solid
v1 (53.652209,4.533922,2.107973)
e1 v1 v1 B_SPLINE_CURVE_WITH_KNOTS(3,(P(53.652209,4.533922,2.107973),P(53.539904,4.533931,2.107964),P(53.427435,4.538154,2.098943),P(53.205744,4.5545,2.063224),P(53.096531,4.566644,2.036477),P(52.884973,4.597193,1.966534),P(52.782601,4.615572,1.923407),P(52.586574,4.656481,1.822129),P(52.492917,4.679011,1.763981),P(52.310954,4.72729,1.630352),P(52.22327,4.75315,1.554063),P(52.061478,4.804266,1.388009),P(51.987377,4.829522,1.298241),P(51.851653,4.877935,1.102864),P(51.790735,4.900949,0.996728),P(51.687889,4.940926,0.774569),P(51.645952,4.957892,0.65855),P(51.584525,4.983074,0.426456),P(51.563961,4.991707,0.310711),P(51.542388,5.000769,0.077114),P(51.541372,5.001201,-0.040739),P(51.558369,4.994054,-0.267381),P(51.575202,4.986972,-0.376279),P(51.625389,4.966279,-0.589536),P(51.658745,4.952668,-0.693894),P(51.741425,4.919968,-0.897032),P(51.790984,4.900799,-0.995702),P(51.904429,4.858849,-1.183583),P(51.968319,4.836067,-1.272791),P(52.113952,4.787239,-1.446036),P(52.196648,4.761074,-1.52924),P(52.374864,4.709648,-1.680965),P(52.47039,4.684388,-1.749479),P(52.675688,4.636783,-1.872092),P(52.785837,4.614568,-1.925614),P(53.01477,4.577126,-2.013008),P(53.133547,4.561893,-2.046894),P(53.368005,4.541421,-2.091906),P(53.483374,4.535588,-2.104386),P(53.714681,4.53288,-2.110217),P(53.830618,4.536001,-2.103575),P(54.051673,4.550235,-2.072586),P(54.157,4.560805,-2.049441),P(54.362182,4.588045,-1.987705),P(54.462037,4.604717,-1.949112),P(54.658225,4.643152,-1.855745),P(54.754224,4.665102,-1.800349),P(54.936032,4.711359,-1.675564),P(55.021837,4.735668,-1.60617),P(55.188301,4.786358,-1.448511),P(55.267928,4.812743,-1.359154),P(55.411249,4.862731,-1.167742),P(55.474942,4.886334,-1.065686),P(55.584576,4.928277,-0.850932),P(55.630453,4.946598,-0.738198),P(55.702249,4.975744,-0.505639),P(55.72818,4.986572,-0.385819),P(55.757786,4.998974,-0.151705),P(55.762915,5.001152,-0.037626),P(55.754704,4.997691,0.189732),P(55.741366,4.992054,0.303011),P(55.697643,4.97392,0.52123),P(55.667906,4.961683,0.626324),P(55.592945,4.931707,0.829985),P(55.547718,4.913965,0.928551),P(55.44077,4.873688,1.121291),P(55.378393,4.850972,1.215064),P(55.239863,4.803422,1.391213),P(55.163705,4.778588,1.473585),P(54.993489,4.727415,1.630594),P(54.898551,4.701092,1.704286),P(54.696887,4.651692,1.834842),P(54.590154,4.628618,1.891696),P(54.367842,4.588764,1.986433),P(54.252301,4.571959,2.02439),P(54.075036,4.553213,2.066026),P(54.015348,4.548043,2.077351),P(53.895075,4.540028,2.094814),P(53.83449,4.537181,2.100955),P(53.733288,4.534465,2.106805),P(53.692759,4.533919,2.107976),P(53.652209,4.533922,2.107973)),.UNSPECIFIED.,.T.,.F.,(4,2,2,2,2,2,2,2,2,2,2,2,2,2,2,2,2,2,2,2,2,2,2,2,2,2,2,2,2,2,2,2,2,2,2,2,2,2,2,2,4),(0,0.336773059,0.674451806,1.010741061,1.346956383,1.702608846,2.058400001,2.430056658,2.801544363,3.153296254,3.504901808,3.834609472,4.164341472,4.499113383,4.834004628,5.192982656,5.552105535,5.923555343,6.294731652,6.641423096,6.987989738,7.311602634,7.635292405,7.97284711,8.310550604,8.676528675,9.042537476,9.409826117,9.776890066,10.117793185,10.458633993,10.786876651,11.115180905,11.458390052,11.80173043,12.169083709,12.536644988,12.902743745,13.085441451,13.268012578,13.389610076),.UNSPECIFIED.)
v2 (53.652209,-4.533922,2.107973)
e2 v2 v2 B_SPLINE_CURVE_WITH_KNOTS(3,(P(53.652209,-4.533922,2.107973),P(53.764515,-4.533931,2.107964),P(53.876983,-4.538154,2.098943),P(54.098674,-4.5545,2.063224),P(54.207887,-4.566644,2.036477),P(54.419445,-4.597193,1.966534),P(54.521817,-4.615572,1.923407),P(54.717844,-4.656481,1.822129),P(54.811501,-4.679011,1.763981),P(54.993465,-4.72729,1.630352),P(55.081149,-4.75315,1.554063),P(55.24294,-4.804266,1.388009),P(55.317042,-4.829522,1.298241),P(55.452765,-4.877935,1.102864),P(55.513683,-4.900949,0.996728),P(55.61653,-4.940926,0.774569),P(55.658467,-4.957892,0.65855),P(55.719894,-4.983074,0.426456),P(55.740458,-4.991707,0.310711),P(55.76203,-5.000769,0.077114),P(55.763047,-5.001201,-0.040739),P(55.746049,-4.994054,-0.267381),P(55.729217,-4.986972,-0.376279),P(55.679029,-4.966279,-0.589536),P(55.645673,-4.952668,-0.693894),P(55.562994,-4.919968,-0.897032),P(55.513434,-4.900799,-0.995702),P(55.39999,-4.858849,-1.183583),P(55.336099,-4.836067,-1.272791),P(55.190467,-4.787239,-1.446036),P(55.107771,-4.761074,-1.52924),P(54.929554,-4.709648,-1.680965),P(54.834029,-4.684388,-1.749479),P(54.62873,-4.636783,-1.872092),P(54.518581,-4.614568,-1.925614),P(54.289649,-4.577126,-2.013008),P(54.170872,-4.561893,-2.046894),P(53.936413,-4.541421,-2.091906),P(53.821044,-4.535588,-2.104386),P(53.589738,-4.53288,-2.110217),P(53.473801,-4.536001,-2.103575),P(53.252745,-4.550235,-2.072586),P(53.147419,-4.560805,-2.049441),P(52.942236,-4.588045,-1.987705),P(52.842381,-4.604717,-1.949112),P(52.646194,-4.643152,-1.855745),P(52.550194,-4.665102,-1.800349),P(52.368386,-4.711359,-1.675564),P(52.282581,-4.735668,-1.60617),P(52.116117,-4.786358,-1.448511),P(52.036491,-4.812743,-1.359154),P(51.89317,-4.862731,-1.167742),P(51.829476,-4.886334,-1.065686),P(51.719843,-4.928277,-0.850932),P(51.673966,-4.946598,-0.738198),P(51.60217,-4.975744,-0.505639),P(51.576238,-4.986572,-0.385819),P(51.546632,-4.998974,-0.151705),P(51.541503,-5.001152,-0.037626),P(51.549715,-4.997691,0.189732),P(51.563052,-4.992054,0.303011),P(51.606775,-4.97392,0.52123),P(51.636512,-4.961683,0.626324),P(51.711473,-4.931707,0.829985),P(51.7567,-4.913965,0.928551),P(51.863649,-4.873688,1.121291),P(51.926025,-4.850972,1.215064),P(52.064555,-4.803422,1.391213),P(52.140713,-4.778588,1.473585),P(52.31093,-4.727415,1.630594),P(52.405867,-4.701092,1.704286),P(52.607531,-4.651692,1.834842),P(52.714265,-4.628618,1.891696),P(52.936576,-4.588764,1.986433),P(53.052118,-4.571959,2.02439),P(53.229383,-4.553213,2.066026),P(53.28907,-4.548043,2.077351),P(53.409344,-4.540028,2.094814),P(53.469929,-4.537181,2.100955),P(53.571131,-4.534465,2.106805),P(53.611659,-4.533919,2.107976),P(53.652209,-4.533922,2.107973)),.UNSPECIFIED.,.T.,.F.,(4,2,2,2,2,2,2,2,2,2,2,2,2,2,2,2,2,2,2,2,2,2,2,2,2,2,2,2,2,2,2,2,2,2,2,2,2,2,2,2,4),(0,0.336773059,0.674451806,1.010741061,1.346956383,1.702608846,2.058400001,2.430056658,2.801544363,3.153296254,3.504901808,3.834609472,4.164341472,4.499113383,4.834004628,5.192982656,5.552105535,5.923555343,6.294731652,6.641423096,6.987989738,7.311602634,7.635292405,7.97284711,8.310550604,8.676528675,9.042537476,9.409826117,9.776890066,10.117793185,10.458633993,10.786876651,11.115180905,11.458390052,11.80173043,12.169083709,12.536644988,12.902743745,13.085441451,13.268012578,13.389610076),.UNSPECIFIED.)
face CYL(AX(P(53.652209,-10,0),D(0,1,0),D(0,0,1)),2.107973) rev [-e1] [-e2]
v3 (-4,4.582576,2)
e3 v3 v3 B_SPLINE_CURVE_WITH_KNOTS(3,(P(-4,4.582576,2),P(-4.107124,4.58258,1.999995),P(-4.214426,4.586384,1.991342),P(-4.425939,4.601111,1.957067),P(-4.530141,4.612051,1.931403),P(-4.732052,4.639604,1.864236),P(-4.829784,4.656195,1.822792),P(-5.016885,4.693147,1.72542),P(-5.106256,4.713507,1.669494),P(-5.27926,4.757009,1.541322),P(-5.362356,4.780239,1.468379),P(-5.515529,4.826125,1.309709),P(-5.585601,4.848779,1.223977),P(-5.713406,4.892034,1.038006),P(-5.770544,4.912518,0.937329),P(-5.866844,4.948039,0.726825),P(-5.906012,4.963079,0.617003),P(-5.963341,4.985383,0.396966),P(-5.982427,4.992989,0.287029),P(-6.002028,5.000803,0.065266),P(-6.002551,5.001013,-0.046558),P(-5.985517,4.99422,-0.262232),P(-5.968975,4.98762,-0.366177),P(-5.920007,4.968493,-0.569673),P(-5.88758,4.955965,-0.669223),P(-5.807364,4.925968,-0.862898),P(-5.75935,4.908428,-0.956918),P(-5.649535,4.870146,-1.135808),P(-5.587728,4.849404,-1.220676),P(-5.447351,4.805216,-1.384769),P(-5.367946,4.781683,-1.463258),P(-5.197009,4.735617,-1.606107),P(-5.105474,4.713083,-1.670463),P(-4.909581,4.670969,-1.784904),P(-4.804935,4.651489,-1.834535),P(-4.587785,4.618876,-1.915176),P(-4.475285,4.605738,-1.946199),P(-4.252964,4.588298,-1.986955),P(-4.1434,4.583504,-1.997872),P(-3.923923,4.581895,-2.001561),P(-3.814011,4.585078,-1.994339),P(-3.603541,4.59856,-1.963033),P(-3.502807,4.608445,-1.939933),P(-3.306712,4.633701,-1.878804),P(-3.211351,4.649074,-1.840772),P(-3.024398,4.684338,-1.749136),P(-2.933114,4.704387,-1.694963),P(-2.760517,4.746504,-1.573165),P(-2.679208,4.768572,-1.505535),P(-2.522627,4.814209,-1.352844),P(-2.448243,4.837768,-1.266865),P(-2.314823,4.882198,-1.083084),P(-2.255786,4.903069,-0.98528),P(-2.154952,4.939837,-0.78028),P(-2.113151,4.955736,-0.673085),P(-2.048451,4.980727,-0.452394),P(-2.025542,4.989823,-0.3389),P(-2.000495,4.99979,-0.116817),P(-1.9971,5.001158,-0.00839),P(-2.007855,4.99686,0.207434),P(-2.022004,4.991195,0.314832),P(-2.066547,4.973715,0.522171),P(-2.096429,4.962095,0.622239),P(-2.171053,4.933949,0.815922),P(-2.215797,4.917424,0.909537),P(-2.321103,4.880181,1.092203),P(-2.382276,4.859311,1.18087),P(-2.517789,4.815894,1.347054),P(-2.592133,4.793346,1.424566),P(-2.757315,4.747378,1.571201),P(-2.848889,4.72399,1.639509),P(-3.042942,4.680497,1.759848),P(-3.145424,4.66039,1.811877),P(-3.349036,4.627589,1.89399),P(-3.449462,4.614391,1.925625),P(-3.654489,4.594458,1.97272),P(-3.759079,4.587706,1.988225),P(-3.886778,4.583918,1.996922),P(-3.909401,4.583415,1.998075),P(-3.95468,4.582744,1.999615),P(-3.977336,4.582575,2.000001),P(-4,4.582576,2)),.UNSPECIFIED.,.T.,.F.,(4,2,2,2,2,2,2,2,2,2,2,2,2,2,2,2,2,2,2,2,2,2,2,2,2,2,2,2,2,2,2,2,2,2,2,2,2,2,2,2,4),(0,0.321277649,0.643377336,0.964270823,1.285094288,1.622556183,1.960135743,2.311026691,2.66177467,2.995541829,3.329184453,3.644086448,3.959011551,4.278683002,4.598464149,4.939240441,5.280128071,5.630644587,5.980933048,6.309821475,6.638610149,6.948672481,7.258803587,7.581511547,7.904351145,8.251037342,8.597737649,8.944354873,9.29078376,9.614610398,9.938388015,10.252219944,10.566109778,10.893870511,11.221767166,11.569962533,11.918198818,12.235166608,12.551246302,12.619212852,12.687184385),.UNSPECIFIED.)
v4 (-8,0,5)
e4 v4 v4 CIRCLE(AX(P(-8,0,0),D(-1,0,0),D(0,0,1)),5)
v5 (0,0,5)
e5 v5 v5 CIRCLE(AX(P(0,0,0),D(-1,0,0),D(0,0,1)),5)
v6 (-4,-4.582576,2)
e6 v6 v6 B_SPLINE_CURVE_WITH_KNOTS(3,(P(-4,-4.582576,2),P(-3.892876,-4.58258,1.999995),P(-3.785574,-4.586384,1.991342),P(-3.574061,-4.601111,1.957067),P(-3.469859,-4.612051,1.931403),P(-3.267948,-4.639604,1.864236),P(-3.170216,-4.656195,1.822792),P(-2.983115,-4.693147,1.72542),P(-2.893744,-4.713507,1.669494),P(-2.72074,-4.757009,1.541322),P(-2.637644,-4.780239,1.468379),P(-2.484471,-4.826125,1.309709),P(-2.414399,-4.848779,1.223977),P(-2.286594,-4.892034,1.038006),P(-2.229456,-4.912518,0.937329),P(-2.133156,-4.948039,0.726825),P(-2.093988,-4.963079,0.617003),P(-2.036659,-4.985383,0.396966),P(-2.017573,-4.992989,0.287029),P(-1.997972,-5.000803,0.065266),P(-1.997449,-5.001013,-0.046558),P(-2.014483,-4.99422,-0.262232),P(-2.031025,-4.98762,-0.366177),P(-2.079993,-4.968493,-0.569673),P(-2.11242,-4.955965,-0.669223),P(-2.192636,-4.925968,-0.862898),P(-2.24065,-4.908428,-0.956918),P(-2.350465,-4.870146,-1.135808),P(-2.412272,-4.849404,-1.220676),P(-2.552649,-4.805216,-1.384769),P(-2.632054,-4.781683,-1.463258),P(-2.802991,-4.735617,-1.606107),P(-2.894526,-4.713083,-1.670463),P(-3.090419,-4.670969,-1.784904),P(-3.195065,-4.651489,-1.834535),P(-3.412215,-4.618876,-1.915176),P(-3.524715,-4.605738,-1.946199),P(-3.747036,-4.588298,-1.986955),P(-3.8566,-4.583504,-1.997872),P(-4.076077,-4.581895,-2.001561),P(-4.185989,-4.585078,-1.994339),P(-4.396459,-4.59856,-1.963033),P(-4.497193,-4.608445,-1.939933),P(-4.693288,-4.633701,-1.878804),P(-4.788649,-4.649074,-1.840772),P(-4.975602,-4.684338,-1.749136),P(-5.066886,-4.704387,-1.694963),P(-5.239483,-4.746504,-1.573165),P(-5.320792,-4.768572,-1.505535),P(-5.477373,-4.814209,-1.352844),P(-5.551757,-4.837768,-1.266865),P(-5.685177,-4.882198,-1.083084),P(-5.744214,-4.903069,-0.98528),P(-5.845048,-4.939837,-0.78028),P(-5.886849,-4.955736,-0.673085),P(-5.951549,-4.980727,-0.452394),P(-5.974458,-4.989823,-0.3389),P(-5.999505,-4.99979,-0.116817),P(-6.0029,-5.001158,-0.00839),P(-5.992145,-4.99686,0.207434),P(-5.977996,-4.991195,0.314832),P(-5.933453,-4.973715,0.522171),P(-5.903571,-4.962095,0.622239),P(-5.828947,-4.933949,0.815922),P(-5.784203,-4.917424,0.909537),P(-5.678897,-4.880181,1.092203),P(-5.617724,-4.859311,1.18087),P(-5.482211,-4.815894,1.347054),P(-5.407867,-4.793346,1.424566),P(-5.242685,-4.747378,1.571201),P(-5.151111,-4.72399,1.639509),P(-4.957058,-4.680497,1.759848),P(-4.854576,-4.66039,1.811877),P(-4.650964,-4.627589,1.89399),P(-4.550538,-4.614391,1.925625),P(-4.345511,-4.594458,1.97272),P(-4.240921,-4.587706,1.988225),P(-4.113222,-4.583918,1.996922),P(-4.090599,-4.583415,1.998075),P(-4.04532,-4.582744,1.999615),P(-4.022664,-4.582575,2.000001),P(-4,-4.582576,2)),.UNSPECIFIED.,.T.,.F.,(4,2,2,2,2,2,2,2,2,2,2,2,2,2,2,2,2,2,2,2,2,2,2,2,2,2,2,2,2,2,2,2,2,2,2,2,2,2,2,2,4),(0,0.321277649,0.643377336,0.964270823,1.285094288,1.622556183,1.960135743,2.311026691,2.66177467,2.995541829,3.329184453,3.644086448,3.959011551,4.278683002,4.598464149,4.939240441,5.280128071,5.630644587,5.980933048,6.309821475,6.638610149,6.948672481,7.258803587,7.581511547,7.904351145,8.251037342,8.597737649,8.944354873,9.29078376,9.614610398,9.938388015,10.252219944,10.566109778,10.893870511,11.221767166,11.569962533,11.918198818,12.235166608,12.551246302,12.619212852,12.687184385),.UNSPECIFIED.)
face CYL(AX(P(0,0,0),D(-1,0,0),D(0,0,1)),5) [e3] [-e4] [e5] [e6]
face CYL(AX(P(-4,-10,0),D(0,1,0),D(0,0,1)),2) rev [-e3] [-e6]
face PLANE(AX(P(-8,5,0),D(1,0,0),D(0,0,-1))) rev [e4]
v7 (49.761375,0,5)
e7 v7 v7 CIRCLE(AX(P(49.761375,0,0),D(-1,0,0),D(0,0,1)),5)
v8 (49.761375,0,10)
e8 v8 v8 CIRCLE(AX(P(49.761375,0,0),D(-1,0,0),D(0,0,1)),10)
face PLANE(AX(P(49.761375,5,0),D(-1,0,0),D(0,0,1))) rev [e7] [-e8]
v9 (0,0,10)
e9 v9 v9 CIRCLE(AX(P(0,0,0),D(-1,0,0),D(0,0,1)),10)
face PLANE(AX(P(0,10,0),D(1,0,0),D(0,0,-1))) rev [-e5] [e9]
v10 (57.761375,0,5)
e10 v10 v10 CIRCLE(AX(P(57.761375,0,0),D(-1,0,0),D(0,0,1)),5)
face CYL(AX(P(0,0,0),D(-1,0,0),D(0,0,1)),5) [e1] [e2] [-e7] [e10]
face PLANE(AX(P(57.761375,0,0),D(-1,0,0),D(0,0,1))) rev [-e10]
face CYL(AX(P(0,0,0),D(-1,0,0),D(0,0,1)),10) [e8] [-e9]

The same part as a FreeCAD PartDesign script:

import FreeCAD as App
import Part
import Sketcher

V = App.Vector
Q = App.Units.Quantity


def add_polygon(sketch, points):
    """Adds a closed chain of lines whose ends are joined by coincident constraints."""
    first, n = sketch.GeometryCount, len(points)
    for a, b in zip(points, points[1:] + points[:1]):
        sketch.addGeometry(Part.LineSegment(App.Vector(*a, 0), App.Vector(*b, 0)), False)
    for i in range(n):
        sketch.addConstraint(Sketcher.Constraint("Coincident", first + i, 2, first + (i + 1) % n, 1))

doc = App.newDocument("Part")
params = doc.addObject("Spreadsheet::Sheet", "Params")
for row, (alias, value) in enumerate([
    ("sketch1_width", "8 mm"),
    ("sketch1_height", "5 mm"),
    ("revolution_angle", "360 deg"),
    ("sketch2_diameter", "4 mm"),
], start=1):
    params.set(f"A{row}", alias)
    params.set(f"B{row}", "=" + value)
    params.setAlias(f"B{row}", alias)

body = doc.addObject("PartDesign::Body", "Body")

sketch1 = body.newObject("Sketcher::SketchObject", "Sketch")
sketch1.AttachmentSupport = (doc.getObject("XY_Plane"), [""])
sketch1.MapMode = "FlatFace"
add_polygon(sketch1, [(58, 0), (58, 5), (50, 5), (50, 10), (0, 10), (0, 5), (-8, 5), (-8, 0)])
sketch1.addConstraint([
    Sketcher.Constraint("Vertical", 0),
    Sketcher.Constraint("Horizontal", 1),
    Sketcher.Constraint("Vertical", 2),
    Sketcher.Constraint("Horizontal", 3),
    Sketcher.Constraint("Vertical", 4),
    Sketcher.Constraint("Horizontal", 5),
    Sketcher.Constraint("Vertical", 6),
    Sketcher.Constraint("Horizontal", 7),
    Sketcher.Constraint("PointOnObject", 3, 2, -2),
    Sketcher.Constraint("PointOnObject", 6, 2, -1),
    Sketcher.Constraint("Horizontal", 1, 2, 4, 2),
    Sketcher.Constraint("Equal", 1, 5),
    Sketcher.Constraint("Equal", 0, 2),
    Sketcher.Constraint("DistanceX", 1, 2, 1, 1, Q("8 mm")),
    Sketcher.Constraint("DistanceY", 0, 1, 0, 2, Q("5 mm")),
    Sketcher.Constraint("DistanceX", 3, 2, 3, 1, Q("49.761375 mm")),
])
sketch1.setExpression("Constraints[21]", "Params.sketch1_width")
sketch1.setExpression("Constraints[22]", "Params.sketch1_height")
revolution = body.newObject("PartDesign::Revolution", "Revolution")
revolution.Profile = sketch1
revolution.ReferenceAxis = (sketch1, ["H_Axis"])
revolution.setExpression("Angle", "Params.revolution_angle")

sketch2 = body.newObject("Sketcher::SketchObject", "Sketch001")
sketch2.AttachmentSupport = (doc.getObject("XZ_Plane"), [""])
sketch2.MapMode = "FlatFace"
sketch2.addGeometry([
    Part.Circle(V(-4, 0, 0), V(0, 0, 1), 2),
    Part.Circle(V(53.7, 0, 0), V(0, 0, 1), 2.1),
], False)
sketch2.addConstraint([
    Sketcher.Constraint("PointOnObject", 0, 3, -1),
    Sketcher.Constraint("PointOnObject", 1, 3, -1),
    Sketcher.Constraint("Diameter", 0, Q("4 mm")),
    Sketcher.Constraint("DistanceX", 0, 3, -1, 1, Q("4 mm")),
    Sketcher.Constraint("Diameter", 1, Q("4.215946 mm")),
    Sketcher.Constraint("DistanceX", -1, 1, 1, 3, Q("53.652209 mm")),
])
sketch2.setExpression("Constraints[2]", "Params.sketch2_diameter")
pocket1 = body.newObject("PartDesign::Pocket", "Pocket")
pocket1.Profile = sketch2
pocket1.Type = "ThroughAll"
pocket1.Midplane = True

doc.recompute()
